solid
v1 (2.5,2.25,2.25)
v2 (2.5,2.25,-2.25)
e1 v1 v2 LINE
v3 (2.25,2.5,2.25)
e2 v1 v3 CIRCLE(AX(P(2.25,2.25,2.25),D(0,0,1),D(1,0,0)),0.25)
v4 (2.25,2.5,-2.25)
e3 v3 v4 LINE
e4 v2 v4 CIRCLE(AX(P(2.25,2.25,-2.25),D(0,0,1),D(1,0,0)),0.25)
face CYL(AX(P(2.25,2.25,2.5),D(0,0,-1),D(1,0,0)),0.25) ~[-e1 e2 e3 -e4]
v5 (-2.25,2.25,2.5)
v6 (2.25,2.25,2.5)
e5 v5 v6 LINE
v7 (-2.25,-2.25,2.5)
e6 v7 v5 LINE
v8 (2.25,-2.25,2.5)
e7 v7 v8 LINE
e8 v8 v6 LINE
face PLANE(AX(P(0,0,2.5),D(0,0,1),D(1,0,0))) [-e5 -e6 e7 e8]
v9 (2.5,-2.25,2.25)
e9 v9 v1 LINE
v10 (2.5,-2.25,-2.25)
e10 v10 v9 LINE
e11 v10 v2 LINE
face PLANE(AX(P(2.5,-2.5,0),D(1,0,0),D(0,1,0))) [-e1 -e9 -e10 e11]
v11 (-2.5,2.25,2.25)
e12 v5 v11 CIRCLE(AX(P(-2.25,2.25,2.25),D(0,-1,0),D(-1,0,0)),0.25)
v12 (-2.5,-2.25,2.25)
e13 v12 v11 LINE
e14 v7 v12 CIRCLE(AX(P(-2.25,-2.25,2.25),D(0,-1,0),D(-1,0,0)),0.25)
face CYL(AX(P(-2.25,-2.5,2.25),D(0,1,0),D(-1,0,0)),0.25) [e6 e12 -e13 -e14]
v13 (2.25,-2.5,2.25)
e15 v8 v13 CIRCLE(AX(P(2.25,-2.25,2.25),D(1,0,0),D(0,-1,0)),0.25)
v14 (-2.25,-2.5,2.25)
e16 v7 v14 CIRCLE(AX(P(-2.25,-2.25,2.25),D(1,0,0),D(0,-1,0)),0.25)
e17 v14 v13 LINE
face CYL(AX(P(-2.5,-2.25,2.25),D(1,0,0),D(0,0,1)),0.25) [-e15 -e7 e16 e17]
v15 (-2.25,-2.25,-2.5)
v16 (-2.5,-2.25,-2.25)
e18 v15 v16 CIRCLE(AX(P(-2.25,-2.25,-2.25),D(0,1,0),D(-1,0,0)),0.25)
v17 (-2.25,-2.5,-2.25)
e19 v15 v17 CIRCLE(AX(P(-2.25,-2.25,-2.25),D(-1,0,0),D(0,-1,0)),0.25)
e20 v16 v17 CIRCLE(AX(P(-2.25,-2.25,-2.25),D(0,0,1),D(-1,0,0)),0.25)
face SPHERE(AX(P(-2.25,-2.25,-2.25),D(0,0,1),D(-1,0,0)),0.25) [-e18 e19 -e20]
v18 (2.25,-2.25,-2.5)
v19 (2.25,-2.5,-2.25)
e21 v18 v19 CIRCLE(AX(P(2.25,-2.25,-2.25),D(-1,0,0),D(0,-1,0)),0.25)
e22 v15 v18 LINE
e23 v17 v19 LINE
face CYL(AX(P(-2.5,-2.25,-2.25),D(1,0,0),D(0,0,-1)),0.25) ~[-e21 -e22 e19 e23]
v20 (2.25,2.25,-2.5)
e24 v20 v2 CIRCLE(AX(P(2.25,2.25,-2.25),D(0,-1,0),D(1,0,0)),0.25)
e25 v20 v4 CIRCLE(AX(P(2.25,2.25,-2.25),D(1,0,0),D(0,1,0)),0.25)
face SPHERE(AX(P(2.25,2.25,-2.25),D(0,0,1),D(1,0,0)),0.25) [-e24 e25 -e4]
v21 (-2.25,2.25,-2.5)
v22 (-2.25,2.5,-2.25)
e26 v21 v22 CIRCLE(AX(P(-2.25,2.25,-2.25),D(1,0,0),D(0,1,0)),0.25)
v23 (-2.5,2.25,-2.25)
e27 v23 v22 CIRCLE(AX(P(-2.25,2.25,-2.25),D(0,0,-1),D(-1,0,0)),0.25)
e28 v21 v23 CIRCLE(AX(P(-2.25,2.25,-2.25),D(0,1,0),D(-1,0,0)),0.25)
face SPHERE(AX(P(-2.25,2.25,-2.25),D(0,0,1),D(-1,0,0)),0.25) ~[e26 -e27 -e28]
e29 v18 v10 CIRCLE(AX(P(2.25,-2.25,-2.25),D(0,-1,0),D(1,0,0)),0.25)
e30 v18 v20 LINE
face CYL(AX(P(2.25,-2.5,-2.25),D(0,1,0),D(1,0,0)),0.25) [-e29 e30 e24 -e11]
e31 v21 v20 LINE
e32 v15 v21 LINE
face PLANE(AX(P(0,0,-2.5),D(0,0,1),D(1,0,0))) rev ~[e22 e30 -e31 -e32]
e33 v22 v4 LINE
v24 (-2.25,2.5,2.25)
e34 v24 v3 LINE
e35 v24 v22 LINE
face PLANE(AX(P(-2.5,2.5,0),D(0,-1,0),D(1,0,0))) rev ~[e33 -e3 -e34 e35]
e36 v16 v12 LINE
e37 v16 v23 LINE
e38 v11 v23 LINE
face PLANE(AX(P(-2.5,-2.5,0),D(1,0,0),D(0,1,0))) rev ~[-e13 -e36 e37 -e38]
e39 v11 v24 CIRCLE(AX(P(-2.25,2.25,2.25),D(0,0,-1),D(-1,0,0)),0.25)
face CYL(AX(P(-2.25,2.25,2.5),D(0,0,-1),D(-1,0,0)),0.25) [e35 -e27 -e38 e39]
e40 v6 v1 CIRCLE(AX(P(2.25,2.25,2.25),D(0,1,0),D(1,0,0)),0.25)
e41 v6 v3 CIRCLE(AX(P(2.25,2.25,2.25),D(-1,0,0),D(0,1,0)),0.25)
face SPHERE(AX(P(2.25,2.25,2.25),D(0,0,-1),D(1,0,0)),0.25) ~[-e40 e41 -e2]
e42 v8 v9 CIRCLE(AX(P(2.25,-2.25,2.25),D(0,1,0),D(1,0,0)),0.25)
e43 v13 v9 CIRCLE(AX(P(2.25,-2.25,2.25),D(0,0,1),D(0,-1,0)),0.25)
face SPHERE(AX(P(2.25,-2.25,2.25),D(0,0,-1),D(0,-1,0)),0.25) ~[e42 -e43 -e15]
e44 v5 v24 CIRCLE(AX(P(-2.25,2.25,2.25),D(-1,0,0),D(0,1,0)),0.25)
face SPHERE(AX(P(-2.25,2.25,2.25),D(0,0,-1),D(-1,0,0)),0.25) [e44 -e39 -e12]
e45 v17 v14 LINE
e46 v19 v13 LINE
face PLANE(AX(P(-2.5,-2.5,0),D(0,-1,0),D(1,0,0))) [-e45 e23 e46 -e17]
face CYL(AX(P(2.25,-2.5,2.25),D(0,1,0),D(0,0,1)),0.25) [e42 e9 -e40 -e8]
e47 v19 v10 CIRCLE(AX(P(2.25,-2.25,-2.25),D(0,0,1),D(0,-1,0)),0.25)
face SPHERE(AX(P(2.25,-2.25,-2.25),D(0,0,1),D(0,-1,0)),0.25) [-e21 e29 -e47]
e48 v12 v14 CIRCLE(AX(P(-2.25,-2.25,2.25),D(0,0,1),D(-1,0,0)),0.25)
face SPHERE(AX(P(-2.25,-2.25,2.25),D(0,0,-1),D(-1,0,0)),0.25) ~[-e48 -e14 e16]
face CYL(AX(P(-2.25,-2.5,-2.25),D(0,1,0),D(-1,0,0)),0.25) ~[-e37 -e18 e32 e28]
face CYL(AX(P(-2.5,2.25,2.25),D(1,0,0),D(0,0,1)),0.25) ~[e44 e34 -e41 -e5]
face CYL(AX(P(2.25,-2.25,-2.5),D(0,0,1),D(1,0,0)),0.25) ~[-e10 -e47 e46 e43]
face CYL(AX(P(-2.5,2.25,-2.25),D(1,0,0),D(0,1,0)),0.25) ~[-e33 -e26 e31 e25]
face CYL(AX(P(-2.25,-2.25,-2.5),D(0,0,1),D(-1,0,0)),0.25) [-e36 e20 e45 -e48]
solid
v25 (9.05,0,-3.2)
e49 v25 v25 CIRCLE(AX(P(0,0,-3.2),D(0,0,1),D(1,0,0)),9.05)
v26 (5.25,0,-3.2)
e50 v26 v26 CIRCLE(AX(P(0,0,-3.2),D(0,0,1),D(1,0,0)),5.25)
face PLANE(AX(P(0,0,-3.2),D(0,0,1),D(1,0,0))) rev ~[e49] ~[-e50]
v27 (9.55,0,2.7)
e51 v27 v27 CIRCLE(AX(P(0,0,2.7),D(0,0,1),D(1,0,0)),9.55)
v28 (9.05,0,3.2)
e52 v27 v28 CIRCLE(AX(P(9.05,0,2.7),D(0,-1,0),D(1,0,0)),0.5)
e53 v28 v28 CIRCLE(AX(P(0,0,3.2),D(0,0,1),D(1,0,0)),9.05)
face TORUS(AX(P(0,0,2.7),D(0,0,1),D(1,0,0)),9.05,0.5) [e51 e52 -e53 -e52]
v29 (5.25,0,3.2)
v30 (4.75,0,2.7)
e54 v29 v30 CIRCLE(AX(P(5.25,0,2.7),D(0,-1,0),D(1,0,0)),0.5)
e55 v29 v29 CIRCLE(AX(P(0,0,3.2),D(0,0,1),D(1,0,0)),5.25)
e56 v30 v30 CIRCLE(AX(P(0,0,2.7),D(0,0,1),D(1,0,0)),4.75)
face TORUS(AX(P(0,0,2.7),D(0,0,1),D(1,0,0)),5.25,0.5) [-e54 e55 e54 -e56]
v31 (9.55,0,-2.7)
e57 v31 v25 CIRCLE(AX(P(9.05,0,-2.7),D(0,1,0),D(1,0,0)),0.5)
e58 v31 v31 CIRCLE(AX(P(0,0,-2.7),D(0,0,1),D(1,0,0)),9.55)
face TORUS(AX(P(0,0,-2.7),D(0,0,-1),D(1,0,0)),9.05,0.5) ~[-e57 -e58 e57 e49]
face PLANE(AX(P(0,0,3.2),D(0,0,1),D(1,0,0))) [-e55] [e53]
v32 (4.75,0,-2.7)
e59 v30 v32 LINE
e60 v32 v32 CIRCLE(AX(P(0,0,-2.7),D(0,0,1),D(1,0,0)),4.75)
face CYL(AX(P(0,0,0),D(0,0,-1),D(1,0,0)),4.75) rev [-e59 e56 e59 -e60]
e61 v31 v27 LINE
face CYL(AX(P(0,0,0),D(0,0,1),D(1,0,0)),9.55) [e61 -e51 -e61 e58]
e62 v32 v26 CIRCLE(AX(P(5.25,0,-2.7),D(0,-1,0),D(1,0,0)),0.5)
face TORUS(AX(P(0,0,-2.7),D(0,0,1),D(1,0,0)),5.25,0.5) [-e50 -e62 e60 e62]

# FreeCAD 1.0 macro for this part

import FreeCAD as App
import Part
import Sketcher
Q = App.Units.Quantity


def edges_at(feature, points):
    """Names of the edges that pass closest to the given points."""
    edges = feature.Shape.Edges
    near = lambda p: min(range(len(edges)), key=lambda i: edges[i].distToShape(Part.Vertex(*p))[0])
    return sorted({f"Edge{near(p) + 1}" for p in points})

doc = App.newDocument("Part")
params = doc.addObject("Spreadsheet::Sheet", "Params")
for row, (alias, value) in enumerate([
    ("sketch1_width", "5 mm"),
    ("pad1_length", "5 mm"),
    ("fillet_radius", "0.25 mm"),
    ("sketch2_diameter", "19.1 mm"),
    ("sketch2_diameter2", "9.5 mm"),
    ("pad2_length", "6.4 mm"),
    ("fillet2_radius", "0.5 mm"),
], start=1):
    params.set(f"A{row}", alias)
    params.set(f"B{row}", "=" + value)
    params.setAlias(f"B{row}", alias)

body = doc.addObject("PartDesign::Body", "Body")

# Sketch on XY plane
sketch1 = doc.addObject("Sketcher::SketchObject", "Sketch")
body.addObject(sketch1)
sketch1.AttachmentSupport = (doc.XY_Plane, [""])
sketch1.MapMode = "FlatFace"
sketch1.addGeometry(Part.LineSegment(App.Vector(-2, 2, 0), App.Vector(-2, -2, 0)), False)
sketch1.addGeometry(Part.LineSegment(App.Vector(-2, -2, 0), App.Vector(2, -2, 0)), False)
sketch1.addGeometry(Part.LineSegment(App.Vector(2, -2, 0), App.Vector(2, 2, 0)), False)
sketch1.addGeometry(Part.LineSegment(App.Vector(2, 2, 0), App.Vector(-2, 2, 0)), False)
sketch1.addConstraint(Sketcher.Constraint("Coincident", 0, 2, 1, 1))
sketch1.addConstraint(Sketcher.Constraint("Coincident", 1, 2, 2, 1))
sketch1.addConstraint(Sketcher.Constraint("Coincident", 2, 2, 3, 1))
sketch1.addConstraint(Sketcher.Constraint("Coincident", 3, 2, 0, 1))
sketch1.addConstraint(Sketcher.Constraint("Vertical", 0))
sketch1.addConstraint(Sketcher.Constraint("Horizontal", 1))
sketch1.addConstraint(Sketcher.Constraint("Vertical", 2))
sketch1.addConstraint(Sketcher.Constraint("Horizontal", 3))
sketch1.addConstraint(Sketcher.Constraint("Symmetric", 0, 2, 2, 2, -1, 1))
sketch1.addConstraint(Sketcher.Constraint("Equal", 3, 0))
sketch1.addConstraint(Sketcher.Constraint("DistanceX", 1, 1, 1, 2, Q("5 mm")))
sketch1.setExpression("Constraints[10]", "Params.sketch1_width")
pad1 = doc.addObject("PartDesign::Pad", "Pad")
body.addObject(pad1)
pad1.Profile = sketch1
pad1.setExpression("Length", "Params.pad1_length")
pad1.Midplane = True
doc.recompute()

fillet = doc.addObject("PartDesign::Fillet", "Fillet")
body.addObject(fillet)
fillet.Base = (pad1, ["Edge1"])
fillet.UseAllEdges = True
fillet.setExpression("Radius", "Params.fillet_radius")
body2 = doc.addObject("PartDesign::Body", "Body001")

# Sketch on XY plane
sketch2 = doc.addObject("Sketcher::SketchObject", "Sketch001")
body2.addObject(sketch2)
sketch2.AttachmentSupport = (doc.getObject("XY_Plane001"), [""])
sketch2.MapMode = "FlatFace"
sketch2.addGeometry(Part.Circle(App.Vector(0, 0, 0), App.Vector(0, 0, 1), 9.6), False)
sketch2.addGeometry(Part.Circle(App.Vector(0, 0, 0), App.Vector(0, 0, 1), 4.8), False)
sketch2.addConstraint(Sketcher.Constraint("Coincident", 0, 3, -1, 1))
sketch2.addConstraint(Sketcher.Constraint("Coincident", 1, 3, -1, 1))
sketch2.addConstraint(Sketcher.Constraint("Diameter", 0, Q("19.1 mm")))
sketch2.addConstraint(Sketcher.Constraint("Diameter", 1, Q("9.5 mm")))
sketch2.setExpression("Constraints[2]", "Params.sketch2_diameter")
sketch2.setExpression("Constraints[3]", "Params.sketch2_diameter2")
pad2 = doc.addObject("PartDesign::Pad", "Pad001")
body2.addObject(pad2)
pad2.Profile = sketch2
pad2.setExpression("Length", "Params.pad2_length")
pad2.Midplane = True
doc.recompute()

fillet2 = doc.addObject("PartDesign::Fillet", "Fillet001")
body2.addObject(fillet2)
fillet2.Base = (pad2, edges_at(pad2, [
    (-9.55, 0, 3.2),
    (-9.55, 0, -3.2),
    (-4.75, 0, 3.2),
    (-4.75, 0, -3.2),
]))
fillet2.setExpression("Radius", "Params.fillet2_radius")

doc.recompute()
